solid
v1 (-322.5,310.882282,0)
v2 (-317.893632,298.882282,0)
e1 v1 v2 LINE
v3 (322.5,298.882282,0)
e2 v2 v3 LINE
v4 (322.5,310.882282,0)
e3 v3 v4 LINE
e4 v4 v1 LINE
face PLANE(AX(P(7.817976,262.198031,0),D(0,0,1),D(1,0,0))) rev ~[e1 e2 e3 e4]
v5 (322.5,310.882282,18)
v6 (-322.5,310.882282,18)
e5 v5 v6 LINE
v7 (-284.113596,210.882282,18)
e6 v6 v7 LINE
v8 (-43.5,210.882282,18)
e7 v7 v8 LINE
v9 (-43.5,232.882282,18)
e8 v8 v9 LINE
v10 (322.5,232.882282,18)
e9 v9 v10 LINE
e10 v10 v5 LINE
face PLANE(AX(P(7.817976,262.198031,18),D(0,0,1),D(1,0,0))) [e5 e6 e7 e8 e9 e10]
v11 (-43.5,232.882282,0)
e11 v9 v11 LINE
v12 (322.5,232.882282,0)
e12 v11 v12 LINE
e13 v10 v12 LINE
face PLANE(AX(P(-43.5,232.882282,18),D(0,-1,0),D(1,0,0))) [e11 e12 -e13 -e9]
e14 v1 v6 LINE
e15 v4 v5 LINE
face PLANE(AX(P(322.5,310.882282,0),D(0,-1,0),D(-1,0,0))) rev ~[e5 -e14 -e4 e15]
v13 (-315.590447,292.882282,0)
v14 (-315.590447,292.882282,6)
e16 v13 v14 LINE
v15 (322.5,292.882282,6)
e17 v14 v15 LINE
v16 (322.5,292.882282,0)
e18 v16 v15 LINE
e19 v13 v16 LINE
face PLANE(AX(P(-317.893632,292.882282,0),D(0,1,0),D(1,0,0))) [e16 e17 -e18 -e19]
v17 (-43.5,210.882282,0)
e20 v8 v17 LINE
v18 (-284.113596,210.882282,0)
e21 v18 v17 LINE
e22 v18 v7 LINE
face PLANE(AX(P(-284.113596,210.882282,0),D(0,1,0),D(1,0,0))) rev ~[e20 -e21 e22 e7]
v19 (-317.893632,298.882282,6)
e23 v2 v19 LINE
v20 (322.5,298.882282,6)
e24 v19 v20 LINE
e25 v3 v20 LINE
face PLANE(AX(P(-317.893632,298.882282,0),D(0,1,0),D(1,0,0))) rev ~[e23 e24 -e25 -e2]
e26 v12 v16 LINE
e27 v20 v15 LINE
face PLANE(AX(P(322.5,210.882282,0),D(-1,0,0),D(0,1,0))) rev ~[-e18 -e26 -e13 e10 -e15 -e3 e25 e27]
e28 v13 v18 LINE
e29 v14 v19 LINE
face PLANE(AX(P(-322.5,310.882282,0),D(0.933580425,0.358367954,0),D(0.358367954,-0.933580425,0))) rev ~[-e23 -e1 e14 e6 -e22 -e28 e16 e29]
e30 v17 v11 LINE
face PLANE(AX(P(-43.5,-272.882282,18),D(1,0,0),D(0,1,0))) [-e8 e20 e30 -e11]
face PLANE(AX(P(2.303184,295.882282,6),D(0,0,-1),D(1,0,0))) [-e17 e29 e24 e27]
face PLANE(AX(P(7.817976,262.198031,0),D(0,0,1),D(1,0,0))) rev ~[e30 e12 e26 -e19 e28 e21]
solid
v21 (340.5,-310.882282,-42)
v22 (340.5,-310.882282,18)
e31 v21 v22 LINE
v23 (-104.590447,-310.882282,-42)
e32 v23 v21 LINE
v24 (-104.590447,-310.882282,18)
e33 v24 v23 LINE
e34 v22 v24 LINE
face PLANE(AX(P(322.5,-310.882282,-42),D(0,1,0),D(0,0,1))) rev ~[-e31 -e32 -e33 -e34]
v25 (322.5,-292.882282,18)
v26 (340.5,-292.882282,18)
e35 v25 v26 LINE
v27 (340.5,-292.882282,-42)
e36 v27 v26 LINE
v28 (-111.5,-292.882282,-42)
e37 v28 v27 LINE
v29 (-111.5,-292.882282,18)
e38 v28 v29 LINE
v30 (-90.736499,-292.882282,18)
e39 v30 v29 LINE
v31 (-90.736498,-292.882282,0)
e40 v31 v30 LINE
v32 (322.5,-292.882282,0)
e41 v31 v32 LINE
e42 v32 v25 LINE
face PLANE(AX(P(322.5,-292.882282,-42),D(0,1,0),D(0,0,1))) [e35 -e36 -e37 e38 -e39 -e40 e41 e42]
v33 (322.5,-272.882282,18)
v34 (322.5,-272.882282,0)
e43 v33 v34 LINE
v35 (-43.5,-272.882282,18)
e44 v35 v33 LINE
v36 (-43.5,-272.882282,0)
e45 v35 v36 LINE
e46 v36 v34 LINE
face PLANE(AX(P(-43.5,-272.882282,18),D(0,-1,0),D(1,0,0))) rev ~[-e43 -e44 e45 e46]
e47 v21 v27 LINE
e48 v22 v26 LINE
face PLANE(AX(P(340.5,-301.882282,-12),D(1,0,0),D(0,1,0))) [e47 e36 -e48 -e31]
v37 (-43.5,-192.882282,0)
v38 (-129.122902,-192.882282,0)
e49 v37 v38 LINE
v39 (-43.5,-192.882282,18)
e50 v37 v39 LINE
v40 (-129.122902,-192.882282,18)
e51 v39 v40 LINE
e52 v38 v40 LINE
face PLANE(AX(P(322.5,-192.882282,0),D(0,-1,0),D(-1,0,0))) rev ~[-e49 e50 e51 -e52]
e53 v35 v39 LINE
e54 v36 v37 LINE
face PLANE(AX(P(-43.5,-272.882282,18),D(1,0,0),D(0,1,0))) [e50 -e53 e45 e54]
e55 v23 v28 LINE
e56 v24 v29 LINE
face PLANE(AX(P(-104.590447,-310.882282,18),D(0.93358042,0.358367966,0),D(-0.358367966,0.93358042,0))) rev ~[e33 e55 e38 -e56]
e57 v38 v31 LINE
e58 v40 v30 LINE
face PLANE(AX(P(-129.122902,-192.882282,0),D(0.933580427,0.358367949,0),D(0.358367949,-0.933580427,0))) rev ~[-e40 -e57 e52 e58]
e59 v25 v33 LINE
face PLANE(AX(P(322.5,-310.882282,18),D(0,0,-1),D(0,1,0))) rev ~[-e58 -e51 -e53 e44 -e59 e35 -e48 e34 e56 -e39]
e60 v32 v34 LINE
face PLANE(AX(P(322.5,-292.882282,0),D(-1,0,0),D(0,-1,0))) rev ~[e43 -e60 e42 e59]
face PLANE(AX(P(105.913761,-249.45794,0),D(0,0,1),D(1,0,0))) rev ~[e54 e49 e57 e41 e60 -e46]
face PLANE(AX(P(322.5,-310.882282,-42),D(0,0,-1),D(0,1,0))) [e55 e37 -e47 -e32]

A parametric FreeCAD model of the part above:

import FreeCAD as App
import Part
import Sketcher
from FreeCAD import Vector
Q = App.Units.Quantity


def add_polygon(sketch, points):
    """Adds a closed chain of lines whose ends are joined by coincident constraints."""
    first, n = sketch.GeometryCount, len(points)
    for a, b in zip(points, points[1:] + points[:1]):
        sketch.addGeometry(Part.LineSegment(App.Vector(*a, 0), App.Vector(*b, 0)), False)
    for i in range(n):
        sketch.addConstraint(Sketcher.Constraint("Coincident", first + i, 2, first + (i + 1) % n, 1))

doc = App.newDocument("Part")
params = doc.addObject("Spreadsheet::Sheet", "Params")
for row, (alias, value) in enumerate([
    ("sketch1_width", "645 mm"),
    ("sketch1_height", "100 mm"),
    ("sketch1_height2", "118 mm"),
    ("pad1_length", "18 mm"),
    ("sketch2_height", "6 mm"),
    ("pocket1_length", "6 mm"),
    ("sketch3_height", "18 mm"),
    ("pad2_length", "42 mm"),
    ("sketch4_width", "18 mm"),
    ("sketch4_height", "60 mm"),
    ("pad3_length", "18 mm"),
    ("pad3_length2", "434 mm"),
    ("sketch5_height", "18 mm"),
    ("pocket2_length", "60 mm"),
    ("sketch6_width", "366 mm"),
    ("pocket3_length", "18 mm"),
], start=1):
    params.set(f"A{row}", alias)
    params.set(f"B{row}", "=" + value)
    params.setAlias(f"B{row}", alias)

body = doc.addObject("PartDesign::Body", "Body")
body.AllowCompound = True

# Sketch on XY plane
sketch1 = body.newObject("Sketcher::SketchObject", "Sketch")
sketch1.AttachmentSupport = (doc.getObject("XY_Plane"), [""])
sketch1.MapMode = "FlatFace"
add_polygon(sketch1, [(322.5, 210.882282), (322.5, 310.882282), (-322.5, 310.882282), (-284.113596, 210.882282)])  # lines 0-3
add_polygon(sketch1, [(-83.826946, -310.882282), (322.5, -310.882282), (322.5, -192.882282), (-129.122902, -192.882282)])  # lines 4-7
sketch1.addConstraint(Sketcher.Constraint("Vertical", 0))
sketch1.addConstraint(Sketcher.Constraint("Horizontal", 1))
sketch1.addConstraint(Sketcher.Constraint("Horizontal", 3))
sketch1.addConstraint(Sketcher.Constraint("Horizontal", 4))
sketch1.addConstraint(Sketcher.Constraint("Vertical", 5))
sketch1.addConstraint(Sketcher.Constraint("Horizontal", 6))
sketch1.addConstraint(Sketcher.Constraint("Symmetric", 1, 2, 4, 2, -1, 1))
sketch1.addConstraint(Sketcher.Constraint("Parallel", 2, 7))
sketch1.addConstraint(Sketcher.Constraint("Vertical", 3, 2, 4, 2))
sketch1.addConstraint(Sketcher.Constraint("DistanceX", 1, 2, 1, 1, Q("645 mm")))
sketch1.addConstraint(Sketcher.Constraint("DistanceY", 0, 1, 0, 2, Q("100 mm")))
sketch1.addConstraint(Sketcher.Constraint("DistanceY", 5, 1, 5, 2, Q("118 mm")))
sketch1.addConstraint(Sketcher.Constraint("Angle", 2, Q("-69 deg")))
sketch1.addConstraint(Sketcher.Constraint("DistanceX", 6, 2, 6, 1, Q("451.622902 mm")))
sketch1.addConstraint(Sketcher.Constraint("DistanceY", -1, 1, 0, 2, Q("310.882282 mm")))
sketch1.setExpression("Constraints[17]", "Params.sketch1_width")
sketch1.setExpression("Constraints[18]", "Params.sketch1_height")
sketch1.setExpression("Constraints[19]", "Params.sketch1_height2")
pad1 = body.newObject("PartDesign::Pad", "Pad")
pad1.Profile = sketch1
pad1.setExpression("Length", "Params.pad1_length")

# Sketch on XY plane
sketch2 = body.newObject("Sketcher::SketchObject", "Sketch001")
sketch2.AttachmentSupport = (doc.getObject("XY_Plane"), [""])
sketch2.MapMode = "FlatFace"
add_polygon(sketch2, [(-317.893632, 292.882282), (-317.893632, 298.882282), (322.5, 298.882282), (322.5, 292.882282)])  # lines 0-3
sketch2.addConstraint(Sketcher.Constraint("Vertical", 0))
sketch2.addConstraint(Sketcher.Constraint("Horizontal", 1))
sketch2.addConstraint(Sketcher.Constraint("Vertical", 2))
sketch2.addConstraint(Sketcher.Constraint("Horizontal", 3))
sketch2.addConstraint(Sketcher.Constraint("DistanceY", 0, 1, 0, 2, Q("6 mm")))
sketch2.addConstraint(Sketcher.Constraint("DistanceX", -1, 1, 1, 2, Q("322.5 mm")))
sketch2.addConstraint(Sketcher.Constraint("DistanceX", 1, 1, 1, 2, Q("640.393632 mm")))
sketch2.addConstraint(Sketcher.Constraint("DistanceY", -1, 1, 0, 2, Q("298.882282 mm")))
sketch2.setExpression("Constraints[8]", "Params.sketch2_height")
pocket1 = body.newObject("PartDesign::Pocket", "Pocket")
pocket1.Profile = sketch2
pocket1.setExpression("Length", "Params.pocket1_length")
pocket1.Reversed = True

# Sketch on XY plane
sketch3 = body.newObject("Sketcher::SketchObject", "Sketch002")
sketch3.AttachmentSupport = (doc.getObject("XY_Plane"), [""])
sketch3.MapMode = "FlatFace"
add_polygon(sketch3, [(322.5, -310.882282), (-83.826946, -310.882282), (-90.736498, -292.882282), (322.5, -292.882282)])  # lines 0-3
sketch3.addConstraint(Sketcher.Constraint("Horizontal", 0))
sketch3.addConstraint(Sketcher.Constraint("Horizontal", 2))
sketch3.addConstraint(Sketcher.Constraint("Vertical", 3))
sketch3.addConstraint(Sketcher.Constraint("DistanceY", 3, 2, 3, 1, Q("18 mm")))
sketch3.addConstraint(Sketcher.Constraint("Angle", 1, Q("110.999998 deg")))
sketch3.addConstraint(Sketcher.Constraint("DistanceX", -1, 1, 2, 2, Q("322.5 mm")))
sketch3.addConstraint(Sketcher.Constraint("DistanceX", 2, 1, 2, 2, Q("413.236498 mm")))
sketch3.addConstraint(Sketcher.Constraint("DistanceY", 0, 2, -1, 1, Q("310.882282 mm")))
sketch3.setExpression("Constraints[7]", "Params.sketch3_height")
pad2 = body.newObject("PartDesign::Pad", "Pad001")
pad2.Profile = sketch3
pad2.setExpression("Length", "Params.pad2_length")
pad2.Reversed = True

# Sketch on YZ plane
sketch4 = body.newObject("Sketcher::SketchObject", "Sketch003")
sketch4.AttachmentSupport = (doc.getObject("YZ_Plane"), [""])
sketch4.MapMode = "FlatFace"
sketch4.AttachmentOffset = App.Placement(Vector(0, 0, 322.5), App.Rotation())
add_polygon(sketch4, [(-310.882282, 18), (-310.882282, -42), (-292.882282, -42), (-292.882282, 18)])  # lines 0-3
sketch4.addConstraint(Sketcher.Constraint("Vertical", 0))
sketch4.addConstraint(Sketcher.Constraint("Horizontal", 1))
sketch4.addConstraint(Sketcher.Constraint("Vertical", 2))
sketch4.addConstraint(Sketcher.Constraint("Horizontal", 3))
sketch4.addConstraint(Sketcher.Constraint("DistanceX", 1, 1, 1, 2, Q("18 mm")))
sketch4.addConstraint(Sketcher.Constraint("DistanceY", 0, 2, 0, 1, Q("60 mm")))
sketch4.addConstraint(Sketcher.Constraint("DistanceY", 0, 2, -1, 1, Q("42 mm")))
sketch4.addConstraint(Sketcher.Constraint("DistanceX", 0, 2, -1, 1, Q("310.882282 mm")))
sketch4.setExpression("Constraints[8]", "Params.sketch4_width")
sketch4.setExpression("Constraints[9]", "Params.sketch4_height")
pad3 = body.newObject("PartDesign::Pad", "Pad002")
pad3.Profile = sketch4
pad3.Type = "TwoLengths"
pad3.setExpression("Length", "Params.pad3_length")
pad3.setExpression("Length2", "Params.pad3_length2")

# Sketch on XY plane
sketch5 = body.newObject("Sketcher::SketchObject", "Sketch004")
sketch5.AttachmentSupport = (doc.getObject("XY_Plane"), [""])
sketch5.MapMode = "FlatFace"
sketch5.AttachmentOffset = App.Placement(Vector(0, 0, 18), App.Rotation())
add_polygon(sketch5, [(-104.590447, -310.882282), (-111.5, -292.882282), (-111.5, -310.882282)])  # lines 0-2
sketch5.addConstraint(Sketcher.Constraint("Vertical", 1))
sketch5.addConstraint(Sketcher.Constraint("Horizontal", 2))
sketch5.addConstraint(Sketcher.Constraint("DistanceY", 1, 2, 1, 1, Q("18 mm")))
sketch5.addConstraint(Sketcher.Constraint("Angle", 0, Q("111.000001 deg")))
sketch5.addConstraint(Sketcher.Constraint("DistanceX", 0, 2, -1, 1, Q("111.5 mm")))
sketch5.addConstraint(Sketcher.Constraint("DistanceY", 0, 2, -1, 1, Q("292.882282 mm")))
sketch5.setExpression("Constraints[5]", "Params.sketch5_height")
pocket2 = body.newObject("PartDesign::Pocket", "Pocket001")
pocket2.Profile = sketch5
pocket2.setExpression("Length", "Params.pocket2_length")

# Sketch on XY plane
sketch6 = body.newObject("Sketcher::SketchObject", "Sketch005")
sketch6.AttachmentSupport = (doc.getObject("XY_Plane"), [""])
sketch6.MapMode = "FlatFace"
sketch6.AttachmentOffset = App.Placement(Vector(0, 0, 18), App.Rotation())
add_polygon(sketch6, [(-43.5, 232.882282), (-43.5, -272.882282), (322.5, -272.882282), (322.5, 232.882282)])  # lines 0-3
sketch6.addConstraint(Sketcher.Constraint("Vertical", 0))
sketch6.addConstraint(Sketcher.Constraint("Horizontal", 1))
sketch6.addConstraint(Sketcher.Constraint("Vertical", 2))
sketch6.addConstraint(Sketcher.Constraint("Horizontal", 3))
sketch6.addConstraint(Sketcher.Constraint("DistanceX", 1, 1, 1, 2, Q("366 mm")))
sketch6.addConstraint(Sketcher.Constraint("DistanceX", 0, 2, -1, 1, Q("43.5 mm")))
sketch6.addConstraint(Sketcher.Constraint("DistanceY", 0, 2, 0, 1, Q("505.764564 mm")))
sketch6.addConstraint(Sketcher.Constraint("DistanceY", 0, 2, -1, 1, Q("272.882282 mm")))
sketch6.setExpression("Constraints[8]", "Params.sketch6_width")
pocket3 = body.newObject("PartDesign::Pocket", "Pocket002")
pocket3.Profile = sketch6
pocket3.setExpression("Length", "Params.pocket3_length")

doc.recompute()
